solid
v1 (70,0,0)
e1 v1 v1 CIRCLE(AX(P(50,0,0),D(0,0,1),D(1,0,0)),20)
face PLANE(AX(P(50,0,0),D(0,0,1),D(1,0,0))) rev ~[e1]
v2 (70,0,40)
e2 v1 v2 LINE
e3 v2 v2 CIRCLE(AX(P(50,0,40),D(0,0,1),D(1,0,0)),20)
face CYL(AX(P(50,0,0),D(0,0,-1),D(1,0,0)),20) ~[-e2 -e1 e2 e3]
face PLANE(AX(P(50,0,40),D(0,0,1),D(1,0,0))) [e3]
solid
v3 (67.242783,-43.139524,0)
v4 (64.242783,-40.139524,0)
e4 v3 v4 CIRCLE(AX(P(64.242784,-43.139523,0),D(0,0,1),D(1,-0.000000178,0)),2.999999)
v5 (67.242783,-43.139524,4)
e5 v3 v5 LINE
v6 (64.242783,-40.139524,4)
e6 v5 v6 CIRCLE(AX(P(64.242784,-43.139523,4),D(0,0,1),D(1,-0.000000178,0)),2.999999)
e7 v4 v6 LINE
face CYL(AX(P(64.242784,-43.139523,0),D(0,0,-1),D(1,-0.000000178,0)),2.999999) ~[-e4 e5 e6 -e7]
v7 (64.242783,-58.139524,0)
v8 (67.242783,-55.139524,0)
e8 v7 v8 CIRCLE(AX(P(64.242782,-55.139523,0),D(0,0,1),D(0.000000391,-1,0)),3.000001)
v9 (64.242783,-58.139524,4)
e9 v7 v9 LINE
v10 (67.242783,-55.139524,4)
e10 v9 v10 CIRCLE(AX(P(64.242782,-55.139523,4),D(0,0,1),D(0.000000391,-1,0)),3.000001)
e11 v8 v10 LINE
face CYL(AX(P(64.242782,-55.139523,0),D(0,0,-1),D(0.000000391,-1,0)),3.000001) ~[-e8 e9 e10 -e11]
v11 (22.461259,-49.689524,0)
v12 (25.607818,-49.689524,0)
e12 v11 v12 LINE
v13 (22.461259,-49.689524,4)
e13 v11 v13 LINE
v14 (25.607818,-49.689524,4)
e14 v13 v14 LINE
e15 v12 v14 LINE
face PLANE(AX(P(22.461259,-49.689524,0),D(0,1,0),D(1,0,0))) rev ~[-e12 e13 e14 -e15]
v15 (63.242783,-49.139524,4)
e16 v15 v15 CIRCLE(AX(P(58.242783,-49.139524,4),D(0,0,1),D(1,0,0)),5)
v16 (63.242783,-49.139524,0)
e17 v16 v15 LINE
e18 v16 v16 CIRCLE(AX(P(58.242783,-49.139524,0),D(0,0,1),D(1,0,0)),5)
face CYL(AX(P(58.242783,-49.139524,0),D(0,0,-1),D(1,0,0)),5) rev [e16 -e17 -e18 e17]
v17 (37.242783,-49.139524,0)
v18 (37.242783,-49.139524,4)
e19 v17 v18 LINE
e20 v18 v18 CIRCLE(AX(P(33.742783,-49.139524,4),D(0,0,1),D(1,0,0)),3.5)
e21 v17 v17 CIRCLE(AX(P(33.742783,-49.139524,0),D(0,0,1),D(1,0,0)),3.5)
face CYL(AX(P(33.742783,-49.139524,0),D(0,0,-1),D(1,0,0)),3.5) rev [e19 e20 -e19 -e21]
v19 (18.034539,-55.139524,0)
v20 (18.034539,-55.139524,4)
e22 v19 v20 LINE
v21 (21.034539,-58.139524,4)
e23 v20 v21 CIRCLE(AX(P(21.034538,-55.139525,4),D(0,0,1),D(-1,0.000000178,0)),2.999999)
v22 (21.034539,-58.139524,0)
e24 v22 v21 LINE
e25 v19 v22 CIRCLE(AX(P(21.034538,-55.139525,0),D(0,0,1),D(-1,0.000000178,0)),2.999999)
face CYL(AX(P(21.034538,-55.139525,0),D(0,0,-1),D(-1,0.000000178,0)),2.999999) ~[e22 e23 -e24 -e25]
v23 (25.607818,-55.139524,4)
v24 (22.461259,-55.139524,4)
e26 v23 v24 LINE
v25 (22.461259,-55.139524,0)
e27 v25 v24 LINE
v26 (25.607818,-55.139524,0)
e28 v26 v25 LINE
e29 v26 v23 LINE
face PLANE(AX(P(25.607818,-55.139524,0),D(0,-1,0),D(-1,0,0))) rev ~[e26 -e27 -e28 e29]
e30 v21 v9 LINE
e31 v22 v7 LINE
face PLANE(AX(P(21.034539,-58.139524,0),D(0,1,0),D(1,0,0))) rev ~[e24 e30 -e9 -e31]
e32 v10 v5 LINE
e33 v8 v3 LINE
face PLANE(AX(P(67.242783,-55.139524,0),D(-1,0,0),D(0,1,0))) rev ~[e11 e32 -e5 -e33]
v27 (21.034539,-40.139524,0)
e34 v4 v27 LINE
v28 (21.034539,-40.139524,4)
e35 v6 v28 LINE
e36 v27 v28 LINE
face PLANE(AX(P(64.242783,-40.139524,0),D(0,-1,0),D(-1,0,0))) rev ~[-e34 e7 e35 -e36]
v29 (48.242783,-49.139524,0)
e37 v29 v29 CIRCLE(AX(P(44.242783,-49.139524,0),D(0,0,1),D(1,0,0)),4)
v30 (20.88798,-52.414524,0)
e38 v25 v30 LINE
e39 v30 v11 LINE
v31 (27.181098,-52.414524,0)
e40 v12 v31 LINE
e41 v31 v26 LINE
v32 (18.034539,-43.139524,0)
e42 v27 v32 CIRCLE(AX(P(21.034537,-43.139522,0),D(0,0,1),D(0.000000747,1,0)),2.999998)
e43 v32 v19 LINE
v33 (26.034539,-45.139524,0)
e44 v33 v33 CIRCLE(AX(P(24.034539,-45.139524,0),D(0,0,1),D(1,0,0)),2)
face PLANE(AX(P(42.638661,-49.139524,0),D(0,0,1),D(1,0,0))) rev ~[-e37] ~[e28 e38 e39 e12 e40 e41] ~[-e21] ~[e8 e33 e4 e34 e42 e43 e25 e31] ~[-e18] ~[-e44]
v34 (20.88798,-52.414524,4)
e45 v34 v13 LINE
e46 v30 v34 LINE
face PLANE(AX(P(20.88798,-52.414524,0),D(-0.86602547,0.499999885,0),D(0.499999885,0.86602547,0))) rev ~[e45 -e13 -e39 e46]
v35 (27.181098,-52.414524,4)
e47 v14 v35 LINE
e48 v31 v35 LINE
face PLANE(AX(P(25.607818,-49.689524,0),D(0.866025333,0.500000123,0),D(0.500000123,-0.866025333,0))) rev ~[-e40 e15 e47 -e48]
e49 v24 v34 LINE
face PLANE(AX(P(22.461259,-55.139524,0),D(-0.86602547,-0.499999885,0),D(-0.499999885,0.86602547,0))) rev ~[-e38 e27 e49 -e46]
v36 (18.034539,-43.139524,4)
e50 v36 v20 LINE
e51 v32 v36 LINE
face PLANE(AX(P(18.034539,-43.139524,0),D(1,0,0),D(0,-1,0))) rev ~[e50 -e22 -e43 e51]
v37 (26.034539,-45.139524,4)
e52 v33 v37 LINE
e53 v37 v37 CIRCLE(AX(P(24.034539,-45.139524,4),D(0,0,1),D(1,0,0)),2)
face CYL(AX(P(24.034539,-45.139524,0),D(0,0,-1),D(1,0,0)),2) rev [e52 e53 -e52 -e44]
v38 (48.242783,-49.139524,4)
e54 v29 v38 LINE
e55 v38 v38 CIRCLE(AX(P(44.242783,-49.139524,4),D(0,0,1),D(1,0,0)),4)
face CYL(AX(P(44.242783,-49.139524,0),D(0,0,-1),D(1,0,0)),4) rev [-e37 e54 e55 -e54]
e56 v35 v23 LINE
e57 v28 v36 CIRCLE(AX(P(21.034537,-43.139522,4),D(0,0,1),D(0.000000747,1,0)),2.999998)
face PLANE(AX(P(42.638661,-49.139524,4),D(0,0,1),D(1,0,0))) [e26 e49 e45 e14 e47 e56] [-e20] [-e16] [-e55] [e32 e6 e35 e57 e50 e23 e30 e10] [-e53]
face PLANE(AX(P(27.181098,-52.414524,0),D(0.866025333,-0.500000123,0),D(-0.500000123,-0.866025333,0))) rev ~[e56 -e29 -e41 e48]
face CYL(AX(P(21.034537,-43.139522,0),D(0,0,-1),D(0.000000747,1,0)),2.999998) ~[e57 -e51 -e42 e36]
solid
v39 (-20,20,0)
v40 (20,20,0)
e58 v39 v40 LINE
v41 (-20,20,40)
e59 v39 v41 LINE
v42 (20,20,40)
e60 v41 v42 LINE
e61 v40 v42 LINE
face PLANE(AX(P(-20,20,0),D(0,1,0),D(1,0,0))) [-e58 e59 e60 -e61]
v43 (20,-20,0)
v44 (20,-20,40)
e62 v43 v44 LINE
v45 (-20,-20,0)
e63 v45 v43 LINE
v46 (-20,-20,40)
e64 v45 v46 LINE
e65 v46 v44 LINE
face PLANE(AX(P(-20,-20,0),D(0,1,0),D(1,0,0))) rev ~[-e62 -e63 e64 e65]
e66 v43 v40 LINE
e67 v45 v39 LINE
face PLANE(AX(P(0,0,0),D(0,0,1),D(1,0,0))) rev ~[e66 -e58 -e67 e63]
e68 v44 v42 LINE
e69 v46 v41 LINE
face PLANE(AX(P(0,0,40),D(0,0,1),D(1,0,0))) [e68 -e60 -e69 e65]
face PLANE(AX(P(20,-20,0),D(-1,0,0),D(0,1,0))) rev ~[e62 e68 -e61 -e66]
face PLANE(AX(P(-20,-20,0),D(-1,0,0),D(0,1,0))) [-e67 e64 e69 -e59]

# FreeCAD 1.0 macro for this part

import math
import FreeCAD as App
import Part
import Sketcher

V = App.Vector
Q = App.Units.Quantity

doc = App.newDocument("Part")
body = doc.addObject("PartDesign::Body", "Body")

sketch1 = body.newObject("Sketcher::SketchObject", "Sketch")
sketch1.AttachmentSupport = (doc.getObject("XY_Plane"), [""])
sketch1.MapMode = "FlatFace"
sketch1.addGeometry([
    Part.LineSegment(V(-20, 20, 0), V(-20, -20, 0)),
    Part.LineSegment(V(-20, -20, 0), V(20, -20, 0)),
    Part.LineSegment(V(20, -20, 0), V(20, 20, 0)),
    Part.LineSegment(V(20, 20, 0), V(-20, 20, 0)),
], False)
sketch1.addConstraint([
    Sketcher.Constraint("Coincident", 0, 2, 1, 1),
    Sketcher.Constraint("Coincident", 1, 2, 2, 1),
    Sketcher.Constraint("Coincident", 2, 2, 3, 1),
    Sketcher.Constraint("Coincident", 3, 2, 0, 1),
    Sketcher.Constraint("Vertical", 0),
    Sketcher.Constraint("Horizontal", 1),
    Sketcher.Constraint("Vertical", 2),
    Sketcher.Constraint("Horizontal", 3),
    Sketcher.Constraint("Symmetric", 0, 2, 2, 2, -1, 1),
    Sketcher.Constraint("Equal", 3, 0),
    Sketcher.Constraint("DistanceX", 1, 1, 1, 2, 40.0),
])
pad1 = body.newObject("PartDesign::Pad", "Pad")
pad1.Profile = sketch1
pad1.Length = 40
body2 = doc.addObject("PartDesign::Body", "Body001")

sketch2 = body2.newObject("Sketcher::SketchObject", "Sketch001")
sketch2.AttachmentSupport = (doc.getObject("XY_Plane001"), [""])
sketch2.MapMode = "FlatFace"
sketch2.addGeometry(Part.Circle(V(50, 0, 0), V(0, 0, 1), 20), False)
sketch2.addConstraint([
    Sketcher.Constraint("PointOnObject", 0, 3, -1),
    Sketcher.Constraint("Diameter", 0, 40.0),
    Sketcher.Constraint("DistanceX", -1, 1, 0, 3, 50.0),
])
pad2 = body2.newObject("PartDesign::Pad", "Pad001")
pad2.Profile = sketch2
pad2.Length = 40
body3 = doc.addObject("PartDesign::Body", "Body002")

sketch3 = body3.newObject("Sketcher::SketchObject", "Sketch002")
sketch3.AttachmentSupport = (doc.getObject("XY_Plane002"), [""])
sketch3.MapMode = "FlatFace"
sketch3.addGeometry([
    Part.LineSegment(V(64.242783, -40.139524, 0), V(21.034539, -40.139524, 0)),
    Part.ArcOfCircle(Part.Circle(V(21.034537, -43.139522, 0), V(0, 0, 1), 2.999998), math.radians(89.999957), math.radians(180.000043)),
    Part.LineSegment(V(18.034539, -43.139524, 0), V(18.034539, -55.139524, 0)),
    Part.ArcOfCircle(Part.Circle(V(21.034538, -55.139525, 0), V(0, 0, 1), 2.999999), math.radians(179.99999), math.radians(270.00001)),
    Part.LineSegment(V(21.034539, -58.139524, 0), V(64.242783, -58.139524, 0)),
    Part.ArcOfCircle(Part.Circle(V(64.242782, -55.139523, 0), V(0, 0, 1), 3.000001), math.radians(-89.999978), math.radians(-0.000022)),
    Part.LineSegment(V(67.242783, -55.139524, 0), V(67.242783, -43.139524, 0)),
    Part.ArcOfCircle(Part.Circle(V(64.242784, -43.139523, 0), V(0, 0, 1), 2.999999), math.radians(-0.00001), math.radians(90.00001)),
    Part.LineSegment(V(22.461259, -49.689524, 0), V(25.607818, -49.689524, 0)),
    Part.LineSegment(V(25.607818, -49.689524, 0), V(27.181098, -52.414524, 0)),
    Part.LineSegment(V(27.181098, -52.414524, 0), V(25.607818, -55.139524, 0)),
    Part.LineSegment(V(25.607818, -55.139524, 0), V(22.461259, -55.139524, 0)),
    Part.LineSegment(V(22.461259, -55.139524, 0), V(20.88798, -52.414524, 0)),
    Part.LineSegment(V(20.88798, -52.414524, 0), V(22.461259, -49.689524, 0)),
    Part.Circle(V(33.742783, -49.139524, 0), V(0, 0, 1), 3.5),
    Part.Circle(V(24.034539, -45.139524, 0), V(0, 0, 1), 2),
    Part.Circle(V(44.242783, -49.139524, 0), V(0, 0, 1), 4),
    Part.Circle(V(58.242783, -49.139524, 0), V(0, 0, 1), 5),
], False)
sketch3.addConstraint([
    Sketcher.Constraint("Tangent", 0, 2, 1, 1),
    Sketcher.Constraint("Tangent", 1, 2, 2, 1),
    Sketcher.Constraint("Tangent", 2, 2, 3, 1),
    Sketcher.Constraint("Tangent", 3, 2, 4, 1),
    Sketcher.Constraint("Tangent", 4, 2, 5, 1),
    Sketcher.Constraint("Tangent", 5, 2, 6, 1),
    Sketcher.Constraint("Tangent", 6, 2, 7, 1),
    Sketcher.Constraint("Tangent", 7, 2, 0, 1),
    Sketcher.Constraint("Coincident", 8, 2, 9, 1),
    Sketcher.Constraint("Coincident", 9, 2, 10, 1),
    Sketcher.Constraint("Coincident", 10, 2, 11, 1),
    Sketcher.Constraint("Coincident", 11, 2, 12, 1),
    Sketcher.Constraint("Coincident", 12, 2, 13, 1),
    Sketcher.Constraint("Coincident", 13, 2, 8, 1),
    Sketcher.Constraint("Horizontal", 0),
    Sketcher.Constraint("Vertical", 2),
    Sketcher.Constraint("Horizontal", 4),
    Sketcher.Constraint("Vertical", 6),
    Sketcher.Constraint("Horizontal", 8),
    Sketcher.Constraint("Horizontal", 11),
    Sketcher.Constraint("Equal", 1, 3),
    Sketcher.Constraint("Equal", 3, 5),
    Sketcher.Constraint("Equal", 5, 7),
    Sketcher.Constraint("Parallel", 9, 12),
    Sketcher.Constraint("Parallel", 10, 13),
    Sketcher.Constraint("Horizontal", 14, 3, 16, 3),
    Sketcher.Constraint("Horizontal", 16, 3, 17, 3),
    Sketcher.Constraint("Horizontal", 5, 2, 10, 2),
    Sketcher.Constraint("Horizontal", 9, 2, 12, 2),
    Sketcher.Constraint("Vertical", 8, 2, 10, 2),
    Sketcher.Constraint("Vertical", 11, 2, 13, 2),
    Sketcher.Constraint("Diameter", 14, 7.0),
    Sketcher.Constraint("Diameter", 15, 4.0),
    Sketcher.Constraint("Diameter", 16, 8.0),
    Sketcher.Constraint("Diameter", 17, 10.0),
    Sketcher.Constraint("Radius", 3, 2.999999),
    Sketcher.Constraint("DistanceY", 2, 2, 2, 1, 12.0),
    Sketcher.Constraint("Angle", 9, Q("-59.999992 deg")),
    Sketcher.Constraint("DistanceY", 3, 3, 14, 3, 6.000001),
    Sketcher.Constraint("DistanceX", 3, 3, 15, 3, 3.000001),
    Sketcher.Constraint("DistanceY", 3, 3, 15, 3, 10.000001),
    Sketcher.Constraint("DistanceX", 16, 3, 5, 3, 19.999999),
    Sketcher.Constraint("DistanceX", 17, 3, 5, 3, 5.999999),
    Sketcher.Constraint("DistanceX", 14, 3, 5, 3, 30.499999),
    Sketcher.Constraint("DistanceY", 8, 2, 15, 3, 4.55),
    Sketcher.Constraint("DistanceX", 8, 1, 8, 2, 3.146559),
    Sketcher.Constraint("DistanceX", 0, 2, 0, 1, 43.208244),
    Sketcher.Constraint("DistanceY", 1, 3, -1, 1, 43.139522),
    Sketcher.Constraint("DistanceX", -1, 1, 3, 3, 21.034538),
    Sketcher.Constraint("DistanceX", -1, 1, 8, 2, 25.607818),
])
pad3 = body3.newObject("PartDesign::Pad", "Pad002")
pad3.Profile = sketch3
pad3.Length = 4

doc.recompute()
